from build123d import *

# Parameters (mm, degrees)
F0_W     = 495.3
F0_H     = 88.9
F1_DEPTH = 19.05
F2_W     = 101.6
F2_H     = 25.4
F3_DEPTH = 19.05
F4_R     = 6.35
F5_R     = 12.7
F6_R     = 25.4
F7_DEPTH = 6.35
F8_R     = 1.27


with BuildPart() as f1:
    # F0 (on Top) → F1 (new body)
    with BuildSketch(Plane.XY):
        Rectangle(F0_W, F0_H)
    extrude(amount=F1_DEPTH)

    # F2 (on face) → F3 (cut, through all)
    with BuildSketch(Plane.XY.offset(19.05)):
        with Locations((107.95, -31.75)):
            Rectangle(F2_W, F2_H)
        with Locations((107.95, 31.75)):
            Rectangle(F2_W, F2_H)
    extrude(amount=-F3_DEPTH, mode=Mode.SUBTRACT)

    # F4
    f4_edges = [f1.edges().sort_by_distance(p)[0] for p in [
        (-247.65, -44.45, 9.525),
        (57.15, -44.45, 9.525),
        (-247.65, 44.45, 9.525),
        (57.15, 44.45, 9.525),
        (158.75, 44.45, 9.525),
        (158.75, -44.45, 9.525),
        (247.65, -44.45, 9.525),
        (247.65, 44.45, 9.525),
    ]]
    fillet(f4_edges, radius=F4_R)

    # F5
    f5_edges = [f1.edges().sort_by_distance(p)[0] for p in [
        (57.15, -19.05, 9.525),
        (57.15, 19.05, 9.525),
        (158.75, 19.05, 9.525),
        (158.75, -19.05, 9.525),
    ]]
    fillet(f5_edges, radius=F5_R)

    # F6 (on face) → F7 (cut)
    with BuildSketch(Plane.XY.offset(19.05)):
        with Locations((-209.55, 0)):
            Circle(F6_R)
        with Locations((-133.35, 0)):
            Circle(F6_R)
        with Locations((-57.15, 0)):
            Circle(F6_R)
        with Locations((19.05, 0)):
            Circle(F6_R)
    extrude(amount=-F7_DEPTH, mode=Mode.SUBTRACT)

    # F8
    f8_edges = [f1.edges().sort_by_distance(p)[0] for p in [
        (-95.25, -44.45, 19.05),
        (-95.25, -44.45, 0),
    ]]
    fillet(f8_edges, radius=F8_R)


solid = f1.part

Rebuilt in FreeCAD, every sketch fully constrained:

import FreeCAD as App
import Part
import Sketcher
Q = App.Units.Quantity


def edges_at(feature, points):
    """Names of the edges that pass closest to the given points."""
    edges = feature.Shape.Edges
    near = lambda p: min(range(len(edges)), key=lambda i: edges[i].distToShape(Part.Vertex(*p))[0])
    return sorted({f"Edge{near(p) + 1}" for p in points})

doc = App.newDocument("Part")
params = doc.addObject("Spreadsheet::Sheet", "Params")
for row, (alias, value) in enumerate([
    ("sketch1_width", "19.5 in"),
    ("sketch1_height", "3.5 in"),
    ("pad1_length", "0.75 in"),
    ("sketch2_width", "4 in"),
    ("sketch2_height", "1 in"),
    ("fillet_radius", "0.25 in"),
    ("fillet2_radius", "0.5 in"),
    ("sketch3_diameter", "2 in"),
    ("pocket2_length", "0.25 in"),
    ("fillet3_radius", "0.05 in"),
], start=1):
    params.set(f"A{row}", alias)
    params.set(f"B{row}", "=" + value)
    params.setAlias(f"B{row}", alias)

body = doc.addObject("PartDesign::Body", "Body")

# Sketch on XY plane
sketch1 = body.newObject("Sketcher::SketchObject", "Sketch")
sketch1.AttachmentSupport = (doc.getObject("XY_Plane"), [""])
sketch1.MapMode = "FlatFace"
sketch1.addGeometry([
    Part.LineSegment(App.Vector(-248, 44, 0), App.Vector(-248, -44, 0)),
    Part.LineSegment(App.Vector(-248, -44, 0), App.Vector(248, -44, 0)),
    Part.LineSegment(App.Vector(248, -44, 0), App.Vector(248, 44, 0)),
    Part.LineSegment(App.Vector(248, 44, 0), App.Vector(-248, 44, 0)),
], False)
sketch1.addConstraint([
    Sketcher.Constraint("Coincident", 0, 2, 1, 1),
    Sketcher.Constraint("Coincident", 1, 2, 2, 1),
    Sketcher.Constraint("Coincident", 2, 2, 3, 1),
    Sketcher.Constraint("Coincident", 3, 2, 0, 1),
    Sketcher.Constraint("Vertical", 0),
    Sketcher.Constraint("Horizontal", 1),
    Sketcher.Constraint("Vertical", 2),
    Sketcher.Constraint("Horizontal", 3),
    Sketcher.Constraint("Symmetric", 0, 2, 2, 2, -1, 1),
    Sketcher.Constraint("DistanceX", 1, 1, 1, 2, Q("19.5 in")),
    Sketcher.Constraint("DistanceY", 0, 2, 0, 1, Q("3.5 in")),
])
sketch1.setExpression("Constraints[9]", "Params.sketch1_width")
sketch1.setExpression("Constraints[10]", "Params.sketch1_height")
pad1 = body.newObject("PartDesign::Pad", "Pad")
pad1.Profile = sketch1
pad1.setExpression("Length", "Params.pad1_length")

# Sketch on XY plane
sketch2 = body.newObject("Sketcher::SketchObject", "Sketch001")
sketch2.AttachmentSupport = (doc.getObject("XY_Plane"), [""])
sketch2.MapMode = "FlatFace"
sketch2.AttachmentOffset = App.Placement(App.Vector(0, 0, 0.75 * 25.4), App.Rotation())
sketch2.addGeometry([
    Part.LineSegment(App.Vector(57, -19, 0), App.Vector(57, -44, 0)),  # 0
    Part.LineSegment(App.Vector(57, -44, 0), App.Vector(159, -44, 0)),  # 1
    Part.LineSegment(App.Vector(159, -44, 0), App.Vector(159, -19, 0)),  # 2
    Part.LineSegment(App.Vector(159, -19, 0), App.Vector(57, -19, 0)),  # 3
    Part.LineSegment(App.Vector(57, 44, 0), App.Vector(57, 19, 0)),  # 4
    Part.LineSegment(App.Vector(57, 19, 0), App.Vector(159, 19, 0)),  # 5
    Part.LineSegment(App.Vector(159, 19, 0), App.Vector(159, 44, 0)),  # 6
    Part.LineSegment(App.Vector(159, 44, 0), App.Vector(57, 44, 0)),  # 7
], False)
sketch2.addConstraint([
    Sketcher.Constraint("Coincident", 0, 2, 1, 1),
    Sketcher.Constraint("Coincident", 1, 2, 2, 1),
    Sketcher.Constraint("Coincident", 2, 2, 3, 1),
    Sketcher.Constraint("Coincident", 3, 2, 0, 1),
    Sketcher.Constraint("Coincident", 4, 2, 5, 1),
    Sketcher.Constraint("Coincident", 5, 2, 6, 1),
    Sketcher.Constraint("Coincident", 6, 2, 7, 1),
    Sketcher.Constraint("Coincident", 7, 2, 4, 1),
    Sketcher.Constraint("Vertical", 0),
    Sketcher.Constraint("Horizontal", 1),
    Sketcher.Constraint("Vertical", 2),
    Sketcher.Constraint("Horizontal", 3),
    Sketcher.Constraint("Vertical", 4),
    Sketcher.Constraint("Horizontal", 5),
    Sketcher.Constraint("Vertical", 6),
    Sketcher.Constraint("Horizontal", 7),
    Sketcher.Constraint("Symmetric", 3, 2, 4, 2, -1),
    Sketcher.Constraint("Symmetric", 1, 2, 6, 2, -1),
    Sketcher.Constraint("DistanceX", 1, 1, 1, 2, Q("4 in")),
    Sketcher.Constraint("DistanceY", 0, 2, 0, 1, Q("1 in")),
    Sketcher.Constraint("DistanceY", 3, 2, 4, 2, Q("1.5 in")),
    Sketcher.Constraint("DistanceX", -1, 1, 0, 2, Q("2.25 in")),
])
sketch2.setExpression("Constraints[18]", "Params.sketch2_width")
sketch2.setExpression("Constraints[19]", "Params.sketch2_height")
pocket1 = body.newObject("PartDesign::Pocket", "Pocket")
pocket1.Profile = sketch2
pocket1.Type = "ThroughAll"
doc.recompute()

fillet = body.newObject("PartDesign::Fillet", "Fillet")
fillet.Base = (pocket1, edges_at(pocket1, [
    (-247.65, -44.45, 9.525),
    (57.15, -44.45, 9.525),
    (-247.65, 44.45, 9.525),
    (57.15, 44.45, 9.525),
    (158.75, 44.45, 9.525),
    (158.75, -44.45, 9.525),
    (247.65, -44.45, 9.525),
    (247.65, 44.45, 9.525),
]))
fillet.setExpression("Radius", "Params.fillet_radius")
doc.recompute()

fillet2 = body.newObject("PartDesign::Fillet", "Fillet001")
fillet2.Base = (fillet, edges_at(fillet, [
    (57.15, -19.05, 9.525),
    (57.15, 19.05, 9.525),
    (158.75, 19.05, 9.525),
    (158.75, -19.05, 9.525),
]))
fillet2.setExpression("Radius", "Params.fillet2_radius")

# Sketch on XY plane
sketch3 = body.newObject("Sketcher::SketchObject", "Sketch002")
sketch3.AttachmentSupport = (doc.getObject("XY_Plane"), [""])
sketch3.MapMode = "FlatFace"
sketch3.AttachmentOffset = App.Placement(App.Vector(0, 0, 0.75 * 25.4), App.Rotation())
sketch3.addGeometry([
    Part.Circle(App.Vector(-210, 0, 0), App.Vector(0, 0, 1), 25),
    Part.Circle(App.Vector(-133, 0, 0), App.Vector(0, 0, 1), 25),
    Part.Circle(App.Vector(-57, 0, 0), App.Vector(0, 0, 1), 25),
    Part.Circle(App.Vector(19, 0, 0), App.Vector(0, 0, 1), 25),
], False)
sketch3.addConstraint([
    Sketcher.Constraint("Equal", 0, 1),
    Sketcher.Constraint("Equal", 1, 2),
    Sketcher.Constraint("Equal", 2, 3),
    Sketcher.Constraint("PointOnObject", 0, 3, -1),
    Sketcher.Constraint("PointOnObject", 1, 3, -1),
    Sketcher.Constraint("PointOnObject", 2, 3, -1),
    Sketcher.Constraint("PointOnObject", 3, 3, -1),
    Sketcher.Constraint("Diameter", 0, Q("2 in")),
    Sketcher.Constraint("DistanceX", 0, 3, 1, 3, Q("3 in")),
    Sketcher.Constraint("DistanceX", 1, 3, 2, 3, Q("3 in")),
    Sketcher.Constraint("DistanceX", 2, 3, 3, 3, Q("3 in")),
    Sketcher.Constraint("DistanceX", 0, 3, -1, 1, Q("8.25 in")),
])
sketch3.setExpression("Constraints[7]", "Params.sketch3_diameter")
pocket2 = body.newObject("PartDesign::Pocket", "Pocket001")
pocket2.Profile = sketch3
pocket2.setExpression("Length", "Params.pocket2_length")
doc.recompute()

fillet3 = body.newObject("PartDesign::Fillet", "Fillet002")
fillet3.Base = (pocket2, edges_at(pocket2, [(-95.25, -44.45, 19.05), (-95.25, -44.45, 0)]))
fillet3.setExpression("Radius", "Params.fillet3_radius")

doc.recompute()
